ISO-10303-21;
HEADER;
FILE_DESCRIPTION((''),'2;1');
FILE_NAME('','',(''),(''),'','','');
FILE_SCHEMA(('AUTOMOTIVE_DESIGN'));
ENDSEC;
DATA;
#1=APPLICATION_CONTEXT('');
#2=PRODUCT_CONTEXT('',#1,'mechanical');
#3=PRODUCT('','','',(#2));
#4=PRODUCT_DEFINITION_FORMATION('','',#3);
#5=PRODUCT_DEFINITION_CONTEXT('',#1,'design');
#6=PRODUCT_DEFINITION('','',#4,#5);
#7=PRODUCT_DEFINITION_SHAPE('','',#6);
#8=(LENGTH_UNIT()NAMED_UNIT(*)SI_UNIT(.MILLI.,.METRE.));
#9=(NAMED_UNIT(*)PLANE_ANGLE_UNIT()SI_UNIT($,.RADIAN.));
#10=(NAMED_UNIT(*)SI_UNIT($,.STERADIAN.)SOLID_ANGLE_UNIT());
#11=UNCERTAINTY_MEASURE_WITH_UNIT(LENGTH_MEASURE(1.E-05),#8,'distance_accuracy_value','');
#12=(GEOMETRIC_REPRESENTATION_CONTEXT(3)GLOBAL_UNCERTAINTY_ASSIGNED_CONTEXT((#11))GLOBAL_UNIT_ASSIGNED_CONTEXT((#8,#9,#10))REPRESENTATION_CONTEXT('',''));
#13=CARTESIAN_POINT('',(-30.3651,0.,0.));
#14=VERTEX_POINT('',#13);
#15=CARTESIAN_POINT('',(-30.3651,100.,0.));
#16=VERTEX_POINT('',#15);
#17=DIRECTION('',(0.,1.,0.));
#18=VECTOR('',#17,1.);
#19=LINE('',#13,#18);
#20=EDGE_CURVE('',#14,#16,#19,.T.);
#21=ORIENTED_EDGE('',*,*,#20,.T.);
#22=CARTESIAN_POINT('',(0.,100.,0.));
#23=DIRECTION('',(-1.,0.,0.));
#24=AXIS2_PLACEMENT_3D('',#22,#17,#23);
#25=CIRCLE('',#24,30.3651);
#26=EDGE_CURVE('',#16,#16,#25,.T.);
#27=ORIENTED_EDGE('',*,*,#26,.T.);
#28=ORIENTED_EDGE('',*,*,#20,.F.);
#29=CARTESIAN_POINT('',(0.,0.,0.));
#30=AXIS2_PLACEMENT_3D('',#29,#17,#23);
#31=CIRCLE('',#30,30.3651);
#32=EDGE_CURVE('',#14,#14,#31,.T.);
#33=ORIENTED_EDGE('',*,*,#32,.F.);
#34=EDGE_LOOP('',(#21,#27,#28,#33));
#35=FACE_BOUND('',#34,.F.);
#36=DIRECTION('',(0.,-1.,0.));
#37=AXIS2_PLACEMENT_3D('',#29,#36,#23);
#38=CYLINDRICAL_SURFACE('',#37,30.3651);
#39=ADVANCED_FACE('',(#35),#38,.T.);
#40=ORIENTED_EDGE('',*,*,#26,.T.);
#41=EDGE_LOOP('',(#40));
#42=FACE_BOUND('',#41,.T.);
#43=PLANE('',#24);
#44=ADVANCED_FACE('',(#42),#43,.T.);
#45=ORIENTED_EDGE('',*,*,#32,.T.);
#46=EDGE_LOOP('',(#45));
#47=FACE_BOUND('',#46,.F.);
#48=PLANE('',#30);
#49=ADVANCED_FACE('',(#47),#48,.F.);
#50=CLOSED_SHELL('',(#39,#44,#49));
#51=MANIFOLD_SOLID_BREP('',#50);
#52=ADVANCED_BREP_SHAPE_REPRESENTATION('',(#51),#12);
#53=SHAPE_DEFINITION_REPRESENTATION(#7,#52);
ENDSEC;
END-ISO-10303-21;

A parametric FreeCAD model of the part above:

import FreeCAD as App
import Part
import Sketcher

V = App.Vector

doc = App.newDocument("Part")
params = doc.addObject("Spreadsheet::Sheet", "Params")
for row, (alias, value) in enumerate([
    ("pad1_length", "3.9370079 in"),
], start=1):
    params.set(f"A{row}", alias)
    params.set(f"B{row}", "=" + value)
    params.setAlias(f"B{row}", alias)

body = doc.addObject("PartDesign::Body", "Body")

sketch1 = doc.addObject("Sketcher::SketchObject", "Sketch")
body.addObject(sketch1)
sketch1.AttachmentSupport = (doc.XZ_Plane, [""])
sketch1.MapMode = "FlatFace"
sketch1.addGeometry(Part.Circle(V(0, 0, 0), V(0, 0, 1), 30.3651), False)
sketch1.addConstraint(Sketcher.Constraint("Coincident", 0, 3, -1, 1))
sketch1.addConstraint(Sketcher.Constraint("Diameter", 0, 60.7302))
pad1 = doc.addObject("PartDesign::Pad", "Pad")
body.addObject(pad1)
pad1.Profile = sketch1
pad1.setExpression("Length", "Params.pad1_length")
pad1.Reversed = True

doc.recompute()
